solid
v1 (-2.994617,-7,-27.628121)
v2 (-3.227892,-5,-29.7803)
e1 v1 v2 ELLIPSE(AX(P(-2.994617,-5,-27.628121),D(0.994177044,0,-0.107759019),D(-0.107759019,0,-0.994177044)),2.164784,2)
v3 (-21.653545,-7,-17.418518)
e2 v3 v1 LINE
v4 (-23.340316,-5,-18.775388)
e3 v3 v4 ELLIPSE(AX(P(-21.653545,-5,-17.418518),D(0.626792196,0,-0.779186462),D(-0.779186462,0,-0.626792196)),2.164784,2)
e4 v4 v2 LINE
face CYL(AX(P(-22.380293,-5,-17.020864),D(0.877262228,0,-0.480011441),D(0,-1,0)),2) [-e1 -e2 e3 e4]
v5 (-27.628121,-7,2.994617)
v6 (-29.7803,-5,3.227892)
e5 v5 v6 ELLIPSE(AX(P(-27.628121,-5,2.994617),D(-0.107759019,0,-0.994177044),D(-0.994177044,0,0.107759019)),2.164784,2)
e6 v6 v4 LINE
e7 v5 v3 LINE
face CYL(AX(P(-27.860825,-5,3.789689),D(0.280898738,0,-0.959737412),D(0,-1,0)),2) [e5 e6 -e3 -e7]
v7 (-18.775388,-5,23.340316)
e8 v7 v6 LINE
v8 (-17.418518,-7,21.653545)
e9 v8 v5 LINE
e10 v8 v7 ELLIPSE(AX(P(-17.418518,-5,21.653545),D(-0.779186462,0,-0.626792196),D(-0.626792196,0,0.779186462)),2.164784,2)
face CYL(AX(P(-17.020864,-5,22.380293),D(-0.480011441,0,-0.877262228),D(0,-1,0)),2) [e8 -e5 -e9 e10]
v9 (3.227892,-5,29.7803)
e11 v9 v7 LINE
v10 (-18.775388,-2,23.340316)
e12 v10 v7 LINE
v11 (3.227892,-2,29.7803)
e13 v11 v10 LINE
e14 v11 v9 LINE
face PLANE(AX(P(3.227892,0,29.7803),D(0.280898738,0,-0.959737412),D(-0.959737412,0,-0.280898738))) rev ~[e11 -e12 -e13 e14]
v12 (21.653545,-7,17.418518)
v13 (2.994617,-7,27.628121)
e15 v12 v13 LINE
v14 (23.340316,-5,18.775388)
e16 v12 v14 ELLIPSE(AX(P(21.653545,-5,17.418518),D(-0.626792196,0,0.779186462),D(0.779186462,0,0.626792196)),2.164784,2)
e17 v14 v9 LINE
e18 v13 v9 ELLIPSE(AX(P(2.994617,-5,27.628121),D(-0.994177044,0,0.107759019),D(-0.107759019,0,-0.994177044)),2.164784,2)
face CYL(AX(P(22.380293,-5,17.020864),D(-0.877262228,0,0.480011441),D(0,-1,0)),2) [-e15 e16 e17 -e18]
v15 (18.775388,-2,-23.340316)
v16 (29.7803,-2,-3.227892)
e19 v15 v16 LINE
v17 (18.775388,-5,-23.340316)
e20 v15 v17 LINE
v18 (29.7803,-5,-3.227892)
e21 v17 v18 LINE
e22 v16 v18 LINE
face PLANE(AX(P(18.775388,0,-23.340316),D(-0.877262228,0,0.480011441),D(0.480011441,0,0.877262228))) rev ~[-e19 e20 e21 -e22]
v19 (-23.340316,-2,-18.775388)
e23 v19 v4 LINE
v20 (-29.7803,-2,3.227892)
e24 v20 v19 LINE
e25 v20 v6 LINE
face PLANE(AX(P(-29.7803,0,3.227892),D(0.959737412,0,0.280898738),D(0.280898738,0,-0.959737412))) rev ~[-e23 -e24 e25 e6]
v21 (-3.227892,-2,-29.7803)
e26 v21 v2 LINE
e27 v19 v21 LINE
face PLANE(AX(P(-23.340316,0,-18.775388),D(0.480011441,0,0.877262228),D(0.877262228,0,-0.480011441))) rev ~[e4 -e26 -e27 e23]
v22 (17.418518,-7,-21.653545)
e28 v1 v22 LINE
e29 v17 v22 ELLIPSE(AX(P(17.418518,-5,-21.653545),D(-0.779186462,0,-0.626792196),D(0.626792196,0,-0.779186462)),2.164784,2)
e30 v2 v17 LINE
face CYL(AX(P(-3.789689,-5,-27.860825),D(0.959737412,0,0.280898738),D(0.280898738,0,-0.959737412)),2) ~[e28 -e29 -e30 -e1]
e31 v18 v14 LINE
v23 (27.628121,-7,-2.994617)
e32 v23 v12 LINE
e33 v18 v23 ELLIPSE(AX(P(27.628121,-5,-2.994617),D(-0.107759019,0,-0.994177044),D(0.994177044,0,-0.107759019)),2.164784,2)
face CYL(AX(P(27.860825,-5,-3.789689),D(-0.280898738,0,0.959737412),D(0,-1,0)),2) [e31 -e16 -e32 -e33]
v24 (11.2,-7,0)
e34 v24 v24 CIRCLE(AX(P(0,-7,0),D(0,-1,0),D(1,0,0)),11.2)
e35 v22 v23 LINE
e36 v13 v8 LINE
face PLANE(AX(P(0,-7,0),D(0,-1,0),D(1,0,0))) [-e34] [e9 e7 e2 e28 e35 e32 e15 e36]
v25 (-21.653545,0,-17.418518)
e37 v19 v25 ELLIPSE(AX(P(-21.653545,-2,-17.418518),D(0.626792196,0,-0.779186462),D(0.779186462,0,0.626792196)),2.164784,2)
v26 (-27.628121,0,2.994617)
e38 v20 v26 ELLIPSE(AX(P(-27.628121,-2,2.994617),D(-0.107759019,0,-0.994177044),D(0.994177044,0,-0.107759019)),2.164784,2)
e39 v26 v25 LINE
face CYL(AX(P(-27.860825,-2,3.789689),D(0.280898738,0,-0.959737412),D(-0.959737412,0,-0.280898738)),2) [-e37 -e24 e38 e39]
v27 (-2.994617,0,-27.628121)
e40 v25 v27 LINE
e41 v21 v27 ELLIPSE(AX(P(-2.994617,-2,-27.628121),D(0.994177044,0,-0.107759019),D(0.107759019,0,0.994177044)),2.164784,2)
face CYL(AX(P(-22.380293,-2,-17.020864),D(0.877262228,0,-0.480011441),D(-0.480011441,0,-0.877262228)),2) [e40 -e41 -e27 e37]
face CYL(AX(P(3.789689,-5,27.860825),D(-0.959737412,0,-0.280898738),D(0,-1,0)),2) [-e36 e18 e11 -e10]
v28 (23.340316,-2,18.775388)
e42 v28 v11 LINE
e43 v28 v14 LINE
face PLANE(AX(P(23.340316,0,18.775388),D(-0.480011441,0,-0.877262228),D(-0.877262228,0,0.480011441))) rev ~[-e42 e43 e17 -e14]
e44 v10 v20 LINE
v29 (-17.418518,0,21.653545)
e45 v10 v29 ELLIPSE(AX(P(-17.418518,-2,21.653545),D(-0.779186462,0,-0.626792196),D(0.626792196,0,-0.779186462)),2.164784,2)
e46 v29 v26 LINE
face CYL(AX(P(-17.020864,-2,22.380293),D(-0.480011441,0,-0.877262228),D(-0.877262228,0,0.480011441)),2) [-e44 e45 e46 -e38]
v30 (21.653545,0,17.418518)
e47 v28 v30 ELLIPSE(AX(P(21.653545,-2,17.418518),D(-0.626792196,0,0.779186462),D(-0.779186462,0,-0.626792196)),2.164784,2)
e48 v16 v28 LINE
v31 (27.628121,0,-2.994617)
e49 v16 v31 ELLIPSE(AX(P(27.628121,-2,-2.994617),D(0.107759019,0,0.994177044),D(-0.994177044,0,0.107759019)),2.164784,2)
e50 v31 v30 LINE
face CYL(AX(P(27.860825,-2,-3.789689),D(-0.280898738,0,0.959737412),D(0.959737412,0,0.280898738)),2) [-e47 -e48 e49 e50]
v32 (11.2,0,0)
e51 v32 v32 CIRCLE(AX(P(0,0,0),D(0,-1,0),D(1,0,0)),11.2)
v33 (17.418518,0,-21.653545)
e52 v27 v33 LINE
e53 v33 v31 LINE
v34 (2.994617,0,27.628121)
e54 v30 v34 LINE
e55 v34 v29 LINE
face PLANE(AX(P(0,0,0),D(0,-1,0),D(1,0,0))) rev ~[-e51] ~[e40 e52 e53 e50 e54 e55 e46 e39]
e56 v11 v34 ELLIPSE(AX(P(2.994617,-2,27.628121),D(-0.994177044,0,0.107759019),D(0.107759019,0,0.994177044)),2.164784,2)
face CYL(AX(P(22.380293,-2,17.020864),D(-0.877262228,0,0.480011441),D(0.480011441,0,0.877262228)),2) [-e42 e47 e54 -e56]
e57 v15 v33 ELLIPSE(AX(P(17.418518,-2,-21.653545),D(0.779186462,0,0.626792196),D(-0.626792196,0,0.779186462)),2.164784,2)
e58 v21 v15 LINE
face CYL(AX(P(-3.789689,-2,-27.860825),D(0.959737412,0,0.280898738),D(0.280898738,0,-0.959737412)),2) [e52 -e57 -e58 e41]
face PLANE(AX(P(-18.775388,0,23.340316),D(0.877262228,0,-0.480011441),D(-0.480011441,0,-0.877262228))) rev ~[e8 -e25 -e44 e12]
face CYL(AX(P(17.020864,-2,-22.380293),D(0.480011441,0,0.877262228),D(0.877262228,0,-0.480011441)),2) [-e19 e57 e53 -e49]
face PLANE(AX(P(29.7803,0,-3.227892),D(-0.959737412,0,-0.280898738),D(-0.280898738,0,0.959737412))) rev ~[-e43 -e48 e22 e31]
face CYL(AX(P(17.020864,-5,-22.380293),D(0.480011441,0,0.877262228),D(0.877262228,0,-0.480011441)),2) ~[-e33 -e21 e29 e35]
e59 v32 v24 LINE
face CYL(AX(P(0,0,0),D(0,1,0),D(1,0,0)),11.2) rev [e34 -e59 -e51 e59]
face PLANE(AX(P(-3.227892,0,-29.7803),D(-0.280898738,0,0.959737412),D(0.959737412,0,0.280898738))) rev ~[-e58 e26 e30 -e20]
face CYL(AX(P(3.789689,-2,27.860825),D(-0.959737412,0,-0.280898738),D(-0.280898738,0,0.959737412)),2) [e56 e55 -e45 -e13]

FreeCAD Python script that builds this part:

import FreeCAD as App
import Part
import Sketcher

V = App.Vector


def edges_at(feature, points):
    """Names of the edges that pass closest to the given points."""
    edges = feature.Shape.Edges
    near = lambda p: min(range(len(edges)), key=lambda i: edges[i].distToShape(Part.Vertex(*p))[0])
    return sorted({f"Edge{near(p) + 1}" for p in points})


def add_polygon(sketch, points):
    """Adds a closed chain of lines whose ends are joined by coincident constraints."""
    first, n = sketch.GeometryCount, len(points)
    for a, b in zip(points, points[1:] + points[:1]):
        sketch.addGeometry(Part.LineSegment(App.Vector(*a, 0), App.Vector(*b, 0)), False)
    for i in range(n):
        sketch.addConstraint(Sketcher.Constraint("Coincident", first + i, 2, first + (i + 1) % n, 1))

doc = App.newDocument("Part")
params = doc.addObject("Spreadsheet::Sheet", "Params")
for row, (alias, value) in enumerate([
    ("sketch1_diameter", "22.4 mm"),
    ("pad1_length", "7 mm"),
    ("fillet_radius", "2 mm"),
    ("fillet2_radius", "2 mm"),
], start=1):
    params.set(f"A{row}", alias)
    params.set(f"B{row}", "=" + value)
    params.setAlias(f"B{row}", alias)

body = doc.addObject("PartDesign::Body", "Body")

sketch1 = doc.addObject("Sketcher::SketchObject", "Sketch")
body.addObject(sketch1)
sketch1.AttachmentSupport = (doc.XZ_Plane, [""])
sketch1.MapMode = "FlatFace"
add_polygon(sketch1, [(19, -23), (30, -3), (23, 19), (3, 30), (-19, 23), (-30, 3), (-23, -19), (-3, -30)])
sketch1.addGeometry(Part.Circle(V(0, 0, 0), V(0, 0, 1), 11), False)
sketch1.addConstraint([
    Sketcher.Constraint("Coincident", 8, 3, -1, 1),
    Sketcher.Constraint("Symmetric", 0, 2, 4, 2, -1, 1),
    Sketcher.Constraint("Symmetric", 1, 2, 5, 2, -1, 1),
    Sketcher.Constraint("Symmetric", 2, 2, 6, 2, -1, 1),
    Sketcher.Constraint("Symmetric", 3, 2, 7, 2, -1, 1),
    Sketcher.Constraint("Perpendicular", 0, 2),
    Sketcher.Constraint("Perpendicular", 1, 3),
    Sketcher.Constraint("Equal", 0, 1),
    Sketcher.Constraint("Equal", 1, 2),
    Sketcher.Constraint("Equal", 2, 3),
    Sketcher.Constraint("Diameter", 8, 22.4),
    Sketcher.Constraint("DistanceX", -1, 1, 0, 2, 29.7803),
    Sketcher.Constraint("DistanceY", 0, 2, 1, 2, 22.00328),
    Sketcher.Constraint("DistanceX", 2, 2, 0, 2, 26.552408),
])
sketch1.setExpression("Constraints[18]", "Params.sketch1_diameter")
pad1 = doc.addObject("PartDesign::Pad", "Pad")
body.addObject(pad1)
pad1.Profile = sketch1
pad1.setExpression("Length", "Params.pad1_length")
doc.recompute()

fillet = doc.addObject("PartDesign::Fillet", "Fillet")
body.addObject(fillet)
fillet.Base = (pad1, edges_at(pad1, [
    (13.284, 0, 24.278),
    (26.56, 0, 7.774),
    (24.278, 0, -13.284),
    (7.774, 0, -26.56),
    (-13.284, 0, -24.278),
    (-26.56, 0, -7.774),
    (-24.278, 0, 13.284),
    (-7.774, 0, 26.56),
]))
fillet.setExpression("Radius", "Params.fillet_radius")
doc.recompute()

fillet2 = doc.addObject("PartDesign::Fillet", "Fillet001")
body.addObject(fillet2)
fillet2.Base = (fillet, edges_at(fillet, [
    (-7.774, -7, 26.56),
    (-24.278, -7, 13.284),
    (-26.56, -7, -7.774),
    (-13.284, -7, -24.278),
    (7.774, -7, -26.56),
    (24.278, -7, -13.284),
    (26.56, -7, 7.774),
    (13.284, -7, 24.278),
]))
fillet2.setExpression("Radius", "Params.fillet2_radius")

doc.recompute()
